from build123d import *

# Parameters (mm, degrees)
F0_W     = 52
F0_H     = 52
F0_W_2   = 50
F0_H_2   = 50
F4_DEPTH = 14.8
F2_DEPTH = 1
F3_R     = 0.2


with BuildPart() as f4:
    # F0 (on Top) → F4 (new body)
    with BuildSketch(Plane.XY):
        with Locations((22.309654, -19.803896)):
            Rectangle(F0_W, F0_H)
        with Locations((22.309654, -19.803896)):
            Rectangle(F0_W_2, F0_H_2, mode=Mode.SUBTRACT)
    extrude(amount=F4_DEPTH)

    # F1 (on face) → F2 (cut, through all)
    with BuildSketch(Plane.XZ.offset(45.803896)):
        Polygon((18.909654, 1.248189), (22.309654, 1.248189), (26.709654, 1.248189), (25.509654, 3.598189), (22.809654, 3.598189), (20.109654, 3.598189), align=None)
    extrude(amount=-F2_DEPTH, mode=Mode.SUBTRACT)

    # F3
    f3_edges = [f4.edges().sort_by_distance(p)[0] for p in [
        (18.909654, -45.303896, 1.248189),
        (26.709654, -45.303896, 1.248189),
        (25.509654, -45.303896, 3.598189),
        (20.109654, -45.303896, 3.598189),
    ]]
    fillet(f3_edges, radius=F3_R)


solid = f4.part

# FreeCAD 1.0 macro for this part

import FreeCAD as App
import Part
import Sketcher


def edges_at(feature, points):
    """Names of the edges that pass closest to the given points."""
    edges = feature.Shape.Edges
    near = lambda p: min(range(len(edges)), key=lambda i: edges[i].distToShape(Part.Vertex(*p))[0])
    return sorted({f"Edge{near(p) + 1}" for p in points})


def add_polygon(sketch, points):
    """Adds a closed chain of lines whose ends are joined by coincident constraints."""
    first, n = sketch.GeometryCount, len(points)
    for a, b in zip(points, points[1:] + points[:1]):
        sketch.addGeometry(Part.LineSegment(App.Vector(*a, 0), App.Vector(*b, 0)), False)
    for i in range(n):
        sketch.addConstraint(Sketcher.Constraint("Coincident", first + i, 2, first + (i + 1) % n, 1))

doc = App.newDocument("Part")
body = doc.addObject("PartDesign::Body", "Body")

# Sketch on XY plane
sketch1 = body.newObject("Sketcher::SketchObject", "Sketch")
sketch1.AttachmentSupport = (doc.getObject("XY_Plane"), [""])
sketch1.MapMode = "FlatFace"
add_polygon(sketch1, [(-4, 6), (-4, -46), (48, -46), (48, 6)])  # lines 0-3
add_polygon(sketch1, [(47, -45), (-3, -45), (-3, 5), (47, 5)])  # lines 4-7
sketch1.addConstraint([
    Sketcher.Constraint("Vertical", 0),
    Sketcher.Constraint("Horizontal", 1),
    Sketcher.Constraint("Vertical", 2),
    Sketcher.Constraint("Horizontal", 3),
    Sketcher.Constraint("Horizontal", 4),
    Sketcher.Constraint("Vertical", 5),
    Sketcher.Constraint("Horizontal", 6),
    Sketcher.Constraint("Vertical", 7),
    Sketcher.Constraint("Equal", 3, 0),
    Sketcher.Constraint("Equal", 6, 5),
    Sketcher.Constraint("DistanceX", 1, 1, 1, 2, 52.0),
    Sketcher.Constraint("DistanceX", 4, 2, 4, 1, 50.0),
    Sketcher.Constraint("DistanceX", 0, 2, 4, 2, 1.0),
    Sketcher.Constraint("DistanceY", 0, 2, 4, 2, 1.0),
    Sketcher.Constraint("DistanceX", 0, 2, -1, 1, 3.690346),
    Sketcher.Constraint("DistanceY", 0, 2, -1, 1, 45.803896),
])
pad1 = body.newObject("PartDesign::Pad", "Pad")
pad1.Profile = sketch1
pad1.Length = 14.8

# Sketch on XZ plane
sketch2 = body.newObject("Sketcher::SketchObject", "Sketch001")
sketch2.AttachmentSupport = (doc.getObject("XZ_Plane"), [""])
sketch2.MapMode = "FlatFace"
sketch2.AttachmentOffset = App.Placement(App.Vector(0, 0, 45.803896), App.Rotation())
add_polygon(sketch2, [(18.9, 1.2), (26.7, 1.2), (25.5, 3.6), (20.1, 3.6)])  # lines 0-3
sketch2.addConstraint([
    Sketcher.Constraint("Horizontal", 0),
    Sketcher.Constraint("Horizontal", 2),
    Sketcher.Constraint("Equal", 1, 3),
    Sketcher.Constraint("DistanceX", 0, 1, 0, 2, 7.8),
    Sketcher.Constraint("DistanceX", 2, 2, 2, 1, 5.4),
    Sketcher.Constraint("DistanceY", 0, 2, 1, 2, 2.35),
    Sketcher.Constraint("DistanceY", -1, 1, 0, 2, 1.248189),
    Sketcher.Constraint("DistanceX", -1, 1, 0, 2, 26.709654),
])
pocket1 = body.newObject("PartDesign::Pocket", "Pocket")
pocket1.Profile = sketch2
pocket1.Length = 1
doc.recompute()

fillet = body.newObject("PartDesign::Fillet", "Fillet")
fillet.Base = (pocket1, edges_at(pocket1, [
    (18.91, -45.304, 1.248),
    (26.71, -45.304, 1.248),
    (25.51, -45.304, 3.598),
    (20.11, -45.304, 3.598),
]))
fillet.Radius = 0.2

doc.recompute()
